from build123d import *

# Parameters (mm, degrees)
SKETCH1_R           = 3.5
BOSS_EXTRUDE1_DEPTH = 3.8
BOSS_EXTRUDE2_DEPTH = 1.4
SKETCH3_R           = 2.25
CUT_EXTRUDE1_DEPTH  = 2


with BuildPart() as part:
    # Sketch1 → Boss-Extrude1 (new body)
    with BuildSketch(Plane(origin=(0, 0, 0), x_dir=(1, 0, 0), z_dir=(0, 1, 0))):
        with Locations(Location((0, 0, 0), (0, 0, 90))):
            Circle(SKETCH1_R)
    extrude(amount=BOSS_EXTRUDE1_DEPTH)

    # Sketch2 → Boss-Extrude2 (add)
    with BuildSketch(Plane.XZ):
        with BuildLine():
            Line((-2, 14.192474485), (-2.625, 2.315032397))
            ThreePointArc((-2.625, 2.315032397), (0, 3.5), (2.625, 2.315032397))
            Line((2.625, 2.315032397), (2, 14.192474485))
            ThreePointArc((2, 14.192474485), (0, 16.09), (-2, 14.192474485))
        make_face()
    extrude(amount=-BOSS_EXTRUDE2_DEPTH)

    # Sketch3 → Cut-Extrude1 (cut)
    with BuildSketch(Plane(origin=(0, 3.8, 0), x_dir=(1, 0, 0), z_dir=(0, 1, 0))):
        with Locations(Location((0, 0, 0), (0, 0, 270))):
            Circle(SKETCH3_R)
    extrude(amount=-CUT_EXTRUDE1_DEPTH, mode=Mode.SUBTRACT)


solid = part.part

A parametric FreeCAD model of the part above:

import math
import FreeCAD as App
import Part
import Sketcher
from FreeCAD import Vector
Q = App.Units.Quantity

doc = App.newDocument("Part")
body = doc.addObject("PartDesign::Body", "Body")

# Sketch on XZ plane
sketch1 = doc.addObject("Sketcher::SketchObject", "Sketch")
body.addObject(sketch1)
sketch1.AttachmentSupport = (doc.XZ_Plane, [""])
sketch1.MapMode = "FlatFace"
sketch1.addGeometry(Part.Circle(Vector(0, 0, 0), Vector(0, 0, 1), 3.5), False)
sketch1.addConstraint(Sketcher.Constraint("Coincident", 0, 3, -1, 1))
sketch1.addConstraint(Sketcher.Constraint("Diameter", 0, Q("7 mm")))
pad1 = doc.addObject("PartDesign::Pad", "Pad")
body.addObject(pad1)
pad1.Profile = sketch1
pad1.Length = 3.8
pad1.Reversed = True

# Sketch on XZ plane
sketch2 = doc.addObject("Sketcher::SketchObject", "Sketch001")
body.addObject(sketch2)
sketch2.AttachmentSupport = (doc.XZ_Plane, [""])
sketch2.MapMode = "FlatFace"
sketch2.addGeometry(Part.LineSegment(Vector(-2, 14.2, 0), Vector(-2.6, 2.3, 0)), False)
sketch2.addGeometry(Part.ArcOfCircle(Part.Circle(Vector(0, 0, 0), Vector(0, 0, 1), 3.5), math.radians(41), math.radians(139)), False)
sketch2.addGeometry(Part.LineSegment(Vector(2.6, 2.3, 0), Vector(2, 14.2, 0)), False)
sketch2.addGeometry(Part.ArcOfCircle(Part.Circle(Vector(0, 14.1, 0), Vector(0, 0, 1), 2), math.radians(3), math.radians(177)), False)
sketch2.addConstraint(Sketcher.Constraint("Coincident", 0, 2, 1, 2))
sketch2.addConstraint(Sketcher.Constraint("Coincident", 1, 1, 2, 1))
sketch2.addConstraint(Sketcher.Constraint("Tangent", 2, 2, 3, 1))
sketch2.addConstraint(Sketcher.Constraint("Tangent", 3, 2, 0, 1))
sketch2.addConstraint(Sketcher.Constraint("Coincident", 1, 3, -1, 1))
sketch2.addConstraint(Sketcher.Constraint("Symmetric", 2, 2, 3, 2, -2))
sketch2.addConstraint(Sketcher.Constraint("Radius", 1, Q("3.5 mm")))
sketch2.addConstraint(Sketcher.Constraint("DistanceX", -1, 1, 2, 2, Q("2 mm")))
sketch2.addConstraint(Sketcher.Constraint("DistanceX", 0, 2, 1, 1, Q("5.25 mm")))
sketch2.addConstraint(Sketcher.Constraint("DistanceY", 0, 2, 3, 3, Q("11.772201 mm")))
pad2 = doc.addObject("PartDesign::Pad", "Pad001")
body.addObject(pad2)
pad2.Profile = sketch2
pad2.Length = 1.4
pad2.Reversed = True

# Sketch on XZ plane
sketch3 = doc.addObject("Sketcher::SketchObject", "Sketch002")
body.addObject(sketch3)
sketch3.AttachmentSupport = (doc.XZ_Plane, [""])
sketch3.MapMode = "FlatFace"
sketch3.AttachmentOffset = App.Placement(Vector(0, 0, -3.8), App.Rotation())
sketch3.addGeometry(Part.Circle(Vector(0, 0, 0), Vector(0, 0, 1), 2.2), False)
sketch3.addConstraint(Sketcher.Constraint("Coincident", 0, 3, -1, 1))
sketch3.addConstraint(Sketcher.Constraint("Diameter", 0, Q("4.5 mm")))
pocket1 = doc.addObject("PartDesign::Pocket", "Pocket")
body.addObject(pocket1)
pocket1.Profile = sketch3
pocket1.Length = 2
pocket1.Reversed = True

doc.recompute()
